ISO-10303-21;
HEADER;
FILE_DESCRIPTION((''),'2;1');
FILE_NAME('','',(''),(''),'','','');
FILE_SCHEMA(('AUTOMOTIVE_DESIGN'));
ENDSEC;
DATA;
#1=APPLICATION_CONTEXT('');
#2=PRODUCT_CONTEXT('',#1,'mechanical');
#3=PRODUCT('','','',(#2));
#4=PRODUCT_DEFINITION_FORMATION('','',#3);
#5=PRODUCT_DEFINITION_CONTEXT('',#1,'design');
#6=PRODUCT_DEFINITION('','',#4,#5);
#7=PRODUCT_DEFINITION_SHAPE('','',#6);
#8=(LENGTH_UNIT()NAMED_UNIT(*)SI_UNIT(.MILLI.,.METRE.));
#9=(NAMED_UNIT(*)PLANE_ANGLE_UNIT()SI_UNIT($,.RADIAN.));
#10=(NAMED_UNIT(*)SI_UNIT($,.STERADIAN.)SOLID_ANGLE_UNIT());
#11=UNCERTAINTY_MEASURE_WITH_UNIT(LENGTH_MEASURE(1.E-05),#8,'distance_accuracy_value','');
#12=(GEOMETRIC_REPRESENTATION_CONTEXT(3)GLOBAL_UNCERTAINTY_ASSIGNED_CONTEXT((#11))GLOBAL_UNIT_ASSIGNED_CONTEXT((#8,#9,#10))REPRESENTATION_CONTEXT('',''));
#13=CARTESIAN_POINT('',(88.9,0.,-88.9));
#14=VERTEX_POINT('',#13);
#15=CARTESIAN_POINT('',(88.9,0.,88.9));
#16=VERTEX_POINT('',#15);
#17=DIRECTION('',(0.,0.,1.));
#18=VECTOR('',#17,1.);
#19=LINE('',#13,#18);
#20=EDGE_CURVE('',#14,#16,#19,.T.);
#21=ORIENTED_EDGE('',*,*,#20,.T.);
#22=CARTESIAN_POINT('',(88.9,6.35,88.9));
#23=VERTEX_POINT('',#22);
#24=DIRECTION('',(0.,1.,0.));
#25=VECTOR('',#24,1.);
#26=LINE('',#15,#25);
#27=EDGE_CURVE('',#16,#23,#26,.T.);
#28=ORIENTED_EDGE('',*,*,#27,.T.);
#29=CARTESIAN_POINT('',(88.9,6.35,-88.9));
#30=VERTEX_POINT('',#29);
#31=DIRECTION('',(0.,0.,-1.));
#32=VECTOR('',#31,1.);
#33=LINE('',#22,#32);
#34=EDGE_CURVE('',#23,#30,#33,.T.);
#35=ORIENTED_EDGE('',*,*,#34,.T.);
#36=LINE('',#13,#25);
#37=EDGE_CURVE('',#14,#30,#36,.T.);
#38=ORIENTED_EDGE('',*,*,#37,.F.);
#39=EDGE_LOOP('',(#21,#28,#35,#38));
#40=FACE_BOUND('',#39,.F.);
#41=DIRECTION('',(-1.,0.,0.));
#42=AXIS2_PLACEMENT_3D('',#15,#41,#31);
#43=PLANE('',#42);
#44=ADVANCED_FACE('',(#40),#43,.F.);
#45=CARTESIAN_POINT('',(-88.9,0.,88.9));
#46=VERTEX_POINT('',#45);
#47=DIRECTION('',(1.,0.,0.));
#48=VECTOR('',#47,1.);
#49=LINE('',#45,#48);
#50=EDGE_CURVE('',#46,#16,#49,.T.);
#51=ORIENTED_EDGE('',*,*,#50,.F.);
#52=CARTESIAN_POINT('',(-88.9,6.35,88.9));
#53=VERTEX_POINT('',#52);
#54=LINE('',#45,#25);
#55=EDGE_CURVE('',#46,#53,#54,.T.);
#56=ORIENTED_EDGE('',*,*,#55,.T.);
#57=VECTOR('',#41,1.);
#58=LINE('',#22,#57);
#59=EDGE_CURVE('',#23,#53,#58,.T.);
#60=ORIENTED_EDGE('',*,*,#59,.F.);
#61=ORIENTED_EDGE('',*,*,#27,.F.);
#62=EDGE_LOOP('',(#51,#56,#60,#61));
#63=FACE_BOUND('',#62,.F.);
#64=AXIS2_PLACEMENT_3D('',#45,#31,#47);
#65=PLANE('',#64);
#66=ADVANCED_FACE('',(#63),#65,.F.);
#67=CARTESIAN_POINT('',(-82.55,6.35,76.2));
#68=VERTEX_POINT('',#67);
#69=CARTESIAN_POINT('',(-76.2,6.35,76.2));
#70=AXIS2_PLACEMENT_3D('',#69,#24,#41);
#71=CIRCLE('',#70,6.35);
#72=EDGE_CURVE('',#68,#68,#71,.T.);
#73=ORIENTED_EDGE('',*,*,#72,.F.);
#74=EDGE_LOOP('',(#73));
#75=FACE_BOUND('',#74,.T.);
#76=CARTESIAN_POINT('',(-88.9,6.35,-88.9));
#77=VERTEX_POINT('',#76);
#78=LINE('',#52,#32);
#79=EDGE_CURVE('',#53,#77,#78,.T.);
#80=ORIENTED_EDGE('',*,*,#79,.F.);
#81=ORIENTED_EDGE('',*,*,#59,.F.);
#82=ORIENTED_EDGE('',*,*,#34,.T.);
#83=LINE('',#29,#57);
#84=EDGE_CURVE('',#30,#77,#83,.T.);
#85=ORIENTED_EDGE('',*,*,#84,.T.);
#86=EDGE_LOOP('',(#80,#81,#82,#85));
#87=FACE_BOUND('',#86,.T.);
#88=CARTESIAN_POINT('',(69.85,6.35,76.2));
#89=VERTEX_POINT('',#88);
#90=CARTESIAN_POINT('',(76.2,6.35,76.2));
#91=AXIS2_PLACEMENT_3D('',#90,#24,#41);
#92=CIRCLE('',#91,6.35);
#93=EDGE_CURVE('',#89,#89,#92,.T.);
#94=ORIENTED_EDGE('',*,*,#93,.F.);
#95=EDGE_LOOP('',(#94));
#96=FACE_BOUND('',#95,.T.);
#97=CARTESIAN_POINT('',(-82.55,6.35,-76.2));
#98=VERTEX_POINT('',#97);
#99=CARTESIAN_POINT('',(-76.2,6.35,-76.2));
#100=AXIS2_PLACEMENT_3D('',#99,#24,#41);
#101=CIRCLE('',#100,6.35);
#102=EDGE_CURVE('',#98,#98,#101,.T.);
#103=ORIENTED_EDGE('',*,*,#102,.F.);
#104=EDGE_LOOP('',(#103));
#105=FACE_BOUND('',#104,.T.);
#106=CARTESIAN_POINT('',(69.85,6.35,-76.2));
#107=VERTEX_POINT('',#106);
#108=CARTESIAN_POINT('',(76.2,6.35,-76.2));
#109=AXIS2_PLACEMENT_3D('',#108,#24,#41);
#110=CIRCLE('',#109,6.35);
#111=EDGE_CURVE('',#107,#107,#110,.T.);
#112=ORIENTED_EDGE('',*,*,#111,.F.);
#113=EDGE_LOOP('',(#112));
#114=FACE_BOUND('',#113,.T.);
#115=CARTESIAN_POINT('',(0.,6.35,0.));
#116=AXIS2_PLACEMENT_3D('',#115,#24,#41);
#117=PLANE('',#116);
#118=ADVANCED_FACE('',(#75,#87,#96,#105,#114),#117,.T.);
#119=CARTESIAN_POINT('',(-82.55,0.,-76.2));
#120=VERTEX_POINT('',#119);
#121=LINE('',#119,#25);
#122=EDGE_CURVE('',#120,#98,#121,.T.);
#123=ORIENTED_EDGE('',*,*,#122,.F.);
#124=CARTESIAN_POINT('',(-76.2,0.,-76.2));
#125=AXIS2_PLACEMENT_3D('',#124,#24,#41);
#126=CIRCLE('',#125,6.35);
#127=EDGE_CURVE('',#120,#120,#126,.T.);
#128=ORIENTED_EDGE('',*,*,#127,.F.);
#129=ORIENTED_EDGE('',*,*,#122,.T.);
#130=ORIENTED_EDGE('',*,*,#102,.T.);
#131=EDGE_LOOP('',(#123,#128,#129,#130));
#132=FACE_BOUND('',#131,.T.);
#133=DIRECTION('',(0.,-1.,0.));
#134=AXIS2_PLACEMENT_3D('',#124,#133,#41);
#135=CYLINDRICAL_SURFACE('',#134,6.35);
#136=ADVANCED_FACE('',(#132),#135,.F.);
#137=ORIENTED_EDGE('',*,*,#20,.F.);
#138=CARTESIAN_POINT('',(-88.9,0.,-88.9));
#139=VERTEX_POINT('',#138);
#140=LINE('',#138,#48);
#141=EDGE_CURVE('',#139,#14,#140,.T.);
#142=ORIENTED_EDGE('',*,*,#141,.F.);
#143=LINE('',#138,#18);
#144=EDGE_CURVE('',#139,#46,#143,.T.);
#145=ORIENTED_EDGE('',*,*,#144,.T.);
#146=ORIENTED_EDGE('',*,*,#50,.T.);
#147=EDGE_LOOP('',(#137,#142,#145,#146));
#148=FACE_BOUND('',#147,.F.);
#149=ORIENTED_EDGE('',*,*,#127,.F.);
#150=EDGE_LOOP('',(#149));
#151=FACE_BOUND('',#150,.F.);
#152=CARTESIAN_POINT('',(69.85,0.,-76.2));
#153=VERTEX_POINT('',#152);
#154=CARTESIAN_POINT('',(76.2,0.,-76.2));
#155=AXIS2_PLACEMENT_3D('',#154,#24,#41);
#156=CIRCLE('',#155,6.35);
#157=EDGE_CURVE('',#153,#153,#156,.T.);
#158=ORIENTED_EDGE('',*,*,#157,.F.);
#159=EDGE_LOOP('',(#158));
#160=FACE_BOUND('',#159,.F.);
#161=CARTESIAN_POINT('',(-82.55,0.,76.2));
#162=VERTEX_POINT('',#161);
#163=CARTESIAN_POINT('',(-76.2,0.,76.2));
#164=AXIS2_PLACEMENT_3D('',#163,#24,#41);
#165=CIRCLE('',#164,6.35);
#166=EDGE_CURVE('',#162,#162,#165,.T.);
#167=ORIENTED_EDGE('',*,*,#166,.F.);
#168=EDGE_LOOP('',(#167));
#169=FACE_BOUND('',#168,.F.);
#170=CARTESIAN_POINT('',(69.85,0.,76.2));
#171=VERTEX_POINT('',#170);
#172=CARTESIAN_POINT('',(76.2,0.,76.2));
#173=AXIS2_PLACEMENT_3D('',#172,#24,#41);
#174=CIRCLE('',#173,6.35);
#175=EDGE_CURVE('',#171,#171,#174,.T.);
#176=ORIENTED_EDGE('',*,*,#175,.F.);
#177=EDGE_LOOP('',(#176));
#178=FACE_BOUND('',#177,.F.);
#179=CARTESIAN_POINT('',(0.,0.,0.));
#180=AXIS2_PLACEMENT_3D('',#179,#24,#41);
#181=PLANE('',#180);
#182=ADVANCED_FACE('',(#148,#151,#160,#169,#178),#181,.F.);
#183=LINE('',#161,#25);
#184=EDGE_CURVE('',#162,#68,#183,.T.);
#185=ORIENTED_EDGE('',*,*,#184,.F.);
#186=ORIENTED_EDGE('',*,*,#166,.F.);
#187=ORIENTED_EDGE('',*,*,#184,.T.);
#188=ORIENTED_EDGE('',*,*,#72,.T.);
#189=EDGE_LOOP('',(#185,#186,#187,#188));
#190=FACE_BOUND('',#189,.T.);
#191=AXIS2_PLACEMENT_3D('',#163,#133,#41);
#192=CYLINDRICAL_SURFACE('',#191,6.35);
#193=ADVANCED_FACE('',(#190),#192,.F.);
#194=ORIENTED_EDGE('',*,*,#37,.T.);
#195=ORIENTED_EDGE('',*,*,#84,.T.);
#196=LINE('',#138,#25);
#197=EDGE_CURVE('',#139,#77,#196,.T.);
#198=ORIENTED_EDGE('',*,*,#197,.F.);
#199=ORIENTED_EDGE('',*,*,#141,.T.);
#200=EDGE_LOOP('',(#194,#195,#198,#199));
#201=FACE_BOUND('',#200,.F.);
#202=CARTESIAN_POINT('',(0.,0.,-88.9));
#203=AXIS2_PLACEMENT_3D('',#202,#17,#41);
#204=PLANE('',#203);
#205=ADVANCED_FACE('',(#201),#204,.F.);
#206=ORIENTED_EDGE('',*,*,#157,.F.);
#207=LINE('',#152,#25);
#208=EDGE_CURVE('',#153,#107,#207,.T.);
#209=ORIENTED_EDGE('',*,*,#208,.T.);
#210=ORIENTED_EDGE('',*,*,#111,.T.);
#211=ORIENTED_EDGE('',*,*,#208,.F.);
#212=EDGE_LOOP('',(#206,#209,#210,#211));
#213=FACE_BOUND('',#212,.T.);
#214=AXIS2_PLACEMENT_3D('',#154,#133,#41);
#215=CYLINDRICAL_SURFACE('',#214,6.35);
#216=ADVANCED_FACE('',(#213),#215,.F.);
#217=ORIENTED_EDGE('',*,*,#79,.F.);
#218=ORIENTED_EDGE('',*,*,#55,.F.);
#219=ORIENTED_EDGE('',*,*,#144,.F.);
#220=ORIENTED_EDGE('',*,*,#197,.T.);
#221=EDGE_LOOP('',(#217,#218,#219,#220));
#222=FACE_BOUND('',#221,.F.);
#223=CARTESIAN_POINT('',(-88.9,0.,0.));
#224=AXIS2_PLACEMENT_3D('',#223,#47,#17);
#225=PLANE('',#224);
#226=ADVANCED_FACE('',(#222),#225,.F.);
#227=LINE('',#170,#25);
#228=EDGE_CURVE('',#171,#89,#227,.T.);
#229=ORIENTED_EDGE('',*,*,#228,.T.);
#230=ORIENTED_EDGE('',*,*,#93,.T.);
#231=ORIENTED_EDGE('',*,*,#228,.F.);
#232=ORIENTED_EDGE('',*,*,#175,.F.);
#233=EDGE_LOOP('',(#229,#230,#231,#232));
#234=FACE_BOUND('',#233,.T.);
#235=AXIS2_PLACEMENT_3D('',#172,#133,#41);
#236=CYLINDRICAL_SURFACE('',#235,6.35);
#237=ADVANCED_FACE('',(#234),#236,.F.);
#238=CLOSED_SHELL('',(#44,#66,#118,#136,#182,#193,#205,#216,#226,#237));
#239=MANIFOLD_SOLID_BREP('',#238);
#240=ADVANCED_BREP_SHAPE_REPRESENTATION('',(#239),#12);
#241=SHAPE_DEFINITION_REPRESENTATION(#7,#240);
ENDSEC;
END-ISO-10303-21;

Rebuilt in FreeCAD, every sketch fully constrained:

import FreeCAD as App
import Part
import Sketcher
Q = App.Units.Quantity


def add_polygon(sketch, points):
    """Adds a closed chain of lines whose ends are joined by coincident constraints."""
    first, n = sketch.GeometryCount, len(points)
    for a, b in zip(points, points[1:] + points[:1]):
        sketch.addGeometry(Part.LineSegment(App.Vector(*a, 0), App.Vector(*b, 0)), False)
    for i in range(n):
        sketch.addConstraint(Sketcher.Constraint("Coincident", first + i, 2, first + (i + 1) % n, 1))

doc = App.newDocument("Part")
params = doc.addObject("Spreadsheet::Sheet", "Params")
for row, (alias, value) in enumerate([
    ("sketch1_diameter", "0.5 in"),
    ("sketch1_width", "7 in"),
    ("pad1_length", "0.25 in"),
], start=1):
    params.set(f"A{row}", alias)
    params.set(f"B{row}", "=" + value)
    params.setAlias(f"B{row}", alias)

body = doc.addObject("PartDesign::Body", "Body")

# Sketch on XZ plane
sketch1 = body.newObject("Sketcher::SketchObject", "Sketch")
sketch1.AttachmentSupport = (doc.getObject("XZ_Plane"), [""])
sketch1.MapMode = "FlatFace"
add_polygon(sketch1, [(-89, 89), (89, 89), (89, -89), (-89, -89)])  # lines 0-3
sketch1.addGeometry(Part.Circle(App.Vector(-76, 76, 0), App.Vector(0, 0, 1), 6), False)  # 4
sketch1.addGeometry(Part.Circle(App.Vector(-76, -76, 0), App.Vector(0, 0, 1), 6), False)  # 5
sketch1.addGeometry(Part.Circle(App.Vector(76, 76, 0), App.Vector(0, 0, 1), 6), False)  # 6
sketch1.addGeometry(Part.Circle(App.Vector(76, -76, 0), App.Vector(0, 0, 1), 6), False)  # 7
sketch1.addConstraint([
    Sketcher.Constraint("Horizontal", 0),
    Sketcher.Constraint("Vertical", 1),
    Sketcher.Constraint("Horizontal", 2),
    Sketcher.Constraint("Vertical", 3),
    Sketcher.Constraint("Equal", 4, 5),
    Sketcher.Constraint("Equal", 5, 6),
    Sketcher.Constraint("Equal", 6, 7),
    Sketcher.Constraint("Symmetric", 5, 3, 6, 3, -1, 1),
    Sketcher.Constraint("Symmetric", 4, 3, 7, 3, -1, 1),
    Sketcher.Constraint("Symmetric", 0, 2, 2, 2, -1, 1),
    Sketcher.Constraint("Symmetric", 4, 3, 6, 3, -2),
    Sketcher.Constraint("Equal", 2, 1),
    Sketcher.Constraint("Diameter", 4, Q("0.5 in")),
    Sketcher.Constraint("DistanceX", 0, 1, 0, 2, Q("7 in")),
    Sketcher.Constraint("DistanceX", 6, 3, 0, 2, Q("0.5 in")),
    Sketcher.Constraint("DistanceY", 6, 3, 0, 2, Q("0.5 in")),
])
sketch1.setExpression("Constraints[16]", "Params.sketch1_diameter")
sketch1.setExpression("Constraints[17]", "Params.sketch1_width")
pad1 = body.newObject("PartDesign::Pad", "Pad")
pad1.Profile = sketch1
pad1.setExpression("Length", "Params.pad1_length")
pad1.Reversed = True

doc.recompute()
